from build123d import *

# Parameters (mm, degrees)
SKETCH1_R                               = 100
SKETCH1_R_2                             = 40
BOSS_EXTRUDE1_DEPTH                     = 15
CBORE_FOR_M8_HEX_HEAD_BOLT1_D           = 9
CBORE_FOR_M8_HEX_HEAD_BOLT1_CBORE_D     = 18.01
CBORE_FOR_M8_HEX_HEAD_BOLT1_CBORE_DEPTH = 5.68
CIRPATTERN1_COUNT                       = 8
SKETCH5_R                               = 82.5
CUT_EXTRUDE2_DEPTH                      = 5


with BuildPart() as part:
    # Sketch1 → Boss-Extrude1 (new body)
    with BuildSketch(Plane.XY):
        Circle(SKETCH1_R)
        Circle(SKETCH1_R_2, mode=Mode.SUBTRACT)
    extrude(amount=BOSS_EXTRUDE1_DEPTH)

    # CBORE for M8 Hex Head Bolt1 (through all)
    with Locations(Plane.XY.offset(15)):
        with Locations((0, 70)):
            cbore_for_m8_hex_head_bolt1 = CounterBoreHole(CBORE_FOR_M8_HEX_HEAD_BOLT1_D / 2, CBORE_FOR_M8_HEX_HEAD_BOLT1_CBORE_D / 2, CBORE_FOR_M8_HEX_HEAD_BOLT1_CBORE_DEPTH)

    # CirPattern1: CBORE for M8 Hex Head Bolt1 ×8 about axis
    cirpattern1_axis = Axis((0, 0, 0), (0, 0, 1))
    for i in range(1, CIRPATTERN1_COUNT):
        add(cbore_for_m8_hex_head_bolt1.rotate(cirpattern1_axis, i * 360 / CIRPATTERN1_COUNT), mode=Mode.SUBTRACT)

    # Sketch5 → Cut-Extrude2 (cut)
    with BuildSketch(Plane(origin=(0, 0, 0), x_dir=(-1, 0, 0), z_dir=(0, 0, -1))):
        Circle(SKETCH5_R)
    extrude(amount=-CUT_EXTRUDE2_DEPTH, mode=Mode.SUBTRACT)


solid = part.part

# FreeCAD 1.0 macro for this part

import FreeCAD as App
import Part
import Sketcher

V = App.Vector

doc = App.newDocument("Part")
params = doc.addObject("Spreadsheet::Sheet", "Params")
for row, (alias, value) in enumerate([
    ("sketch1_diameter", "200 mm"),
    ("sketch1_diameter2", "80 mm"),
    ("pad1_length", "15 mm"),
    ("sketch2_diameter", "9 mm"),
    ("hole_diameter", "9 mm"),
    ("hole_cbore_diameter", "18.01 mm"),
    ("hole_cbore_depth", "5.68 mm"),
    ("sketch3_diameter", "165 mm"),
    ("pocket1_length", "5 mm"),
], start=1):
    params.set(f"A{row}", alias)
    params.set(f"B{row}", "=" + value)
    params.setAlias(f"B{row}", alias)

body = doc.addObject("PartDesign::Body", "Body")

# Sketch on XY plane
sketch1 = body.newObject("Sketcher::SketchObject", "Sketch")
sketch1.AttachmentSupport = (doc.getObject("XY_Plane"), [""])
sketch1.MapMode = "FlatFace"
sketch1.addGeometry(Part.Circle(V(0, 0, 0), V(0, 0, 1), 100), False)
sketch1.addGeometry(Part.Circle(V(0, 0, 0), V(0, 0, 1), 40), False)
sketch1.addConstraint(Sketcher.Constraint("Coincident", 0, 3, -1, 1))
sketch1.addConstraint(Sketcher.Constraint("Coincident", 1, 3, -1, 1))
sketch1.addConstraint(Sketcher.Constraint("Diameter", 0, 200.0))
sketch1.addConstraint(Sketcher.Constraint("Diameter", 1, 80.0))
sketch1.setExpression("Constraints[2]", "Params.sketch1_diameter")
sketch1.setExpression("Constraints[3]", "Params.sketch1_diameter2")
pad1 = body.newObject("PartDesign::Pad", "Pad")
pad1.Profile = sketch1
pad1.setExpression("Length", "Params.pad1_length")

# Sketch on XY plane
sketch2 = body.newObject("Sketcher::SketchObject", "Sketch001")
sketch2.AttachmentSupport = (doc.getObject("XY_Plane"), [""])
sketch2.MapMode = "FlatFace"
sketch2.AttachmentOffset = App.Placement(V(0, 0, 15), App.Rotation())
sketch2.addGeometry(Part.Circle(V(0, 70, 0), V(0, 0, 1), 4.5), False)
sketch2.addConstraint(Sketcher.Constraint("PointOnObject", 0, 3, -2))
sketch2.addConstraint(Sketcher.Constraint("Diameter", 0, 9.0))
sketch2.addConstraint(Sketcher.Constraint("DistanceY", -1, 1, 0, 3, 70.0))
sketch2.setExpression("Constraints[1]", "Params.sketch2_diameter")
doc.recompute()
hole = body.newObject("PartDesign::Hole", "Hole")
hole.Profile = sketch2
hole.ThreadType = "None"
hole.setExpression("Diameter", "Params.hole_diameter")
hole.DepthType = "ThroughAll"
hole.HoleCutType = "Counterbore"
hole.setExpression("HoleCutDiameter", "Params.hole_cbore_diameter")
hole.setExpression("HoleCutDepth", "Params.hole_cbore_depth")
doc.recompute()

polarpattern = body.newObject("PartDesign::PolarPattern", "PolarPattern")
polarpattern.Originals = [hole]
polarpattern.Axis = (doc.getObject("Z_Axis"), [""])
polarpattern.Angle = 360
polarpattern.Occurrences = 8
body.Tip = polarpattern

# Sketch on XY plane
sketch3 = body.newObject("Sketcher::SketchObject", "Sketch002")
sketch3.AttachmentSupport = (doc.getObject("XY_Plane"), [""])
sketch3.MapMode = "FlatFace"
sketch3.addGeometry(Part.Circle(V(0, 0, 0), V(0, 0, 1), 82.5), False)
sketch3.addConstraint(Sketcher.Constraint("Coincident", 0, 3, -1, 1))
sketch3.addConstraint(Sketcher.Constraint("Diameter", 0, 165.0))
sketch3.setExpression("Constraints[1]", "Params.sketch3_diameter")
pocket1 = body.newObject("PartDesign::Pocket", "Pocket")
pocket1.Profile = sketch3
pocket1.setExpression("Length", "Params.pocket1_length")
pocket1.Reversed = True

doc.recompute()
